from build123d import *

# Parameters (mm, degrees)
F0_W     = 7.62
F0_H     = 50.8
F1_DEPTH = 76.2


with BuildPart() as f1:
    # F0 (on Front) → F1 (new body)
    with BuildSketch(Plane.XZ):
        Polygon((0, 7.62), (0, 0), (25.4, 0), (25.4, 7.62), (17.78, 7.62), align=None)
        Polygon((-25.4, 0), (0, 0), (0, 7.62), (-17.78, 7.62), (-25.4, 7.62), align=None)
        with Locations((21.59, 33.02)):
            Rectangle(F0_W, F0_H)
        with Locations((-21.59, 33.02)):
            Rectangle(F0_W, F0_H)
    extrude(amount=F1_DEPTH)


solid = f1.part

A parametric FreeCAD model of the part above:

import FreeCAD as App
import Part
import Sketcher

V = App.Vector
Q = App.Units.Quantity

doc = App.newDocument("Part")
params = doc.addObject("Spreadsheet::Sheet", "Params")
for row, (alias, value) in enumerate([
    ("sketch1_width", "2 in"),
    ("sketch1_width2", "0.3 in"),
    ("sketch1_height", "2.3 in"),
    ("pad1_length", "3 in"),
], start=1):
    params.set(f"A{row}", alias)
    params.set(f"B{row}", "=" + value)
    params.setAlias(f"B{row}", alias)

body = doc.addObject("PartDesign::Body", "Body")

# Sketch on XZ plane
sketch1 = body.newObject("Sketcher::SketchObject", "Sketch")
sketch1.AttachmentSupport = (doc.getObject("XZ_Plane"), [""])
sketch1.MapMode = "FlatFace"
sketch1.addGeometry([
    Part.LineSegment(V(25, 0, 0), V(25, 58, 0)),  # 0
    Part.LineSegment(V(25, 58, 0), V(18, 58, 0)),  # 1
    Part.LineSegment(V(18, 58, 0), V(18, 8, 0)),  # 2
    Part.LineSegment(V(18, 8, 0), V(-18, 8, 0)),  # 3
    Part.LineSegment(V(-18, 8, 0), V(-18, 58, 0)),  # 4
    Part.LineSegment(V(-18, 58, 0), V(-25, 58, 0)),  # 5
    Part.LineSegment(V(-25, 58, 0), V(-25, 0, 0)),  # 6
    Part.LineSegment(V(-25, 0, 0), V(25, 0, 0)),  # 7
], False)
sketch1.addConstraint([
    Sketcher.Constraint("Coincident", 0, 2, 1, 1),
    Sketcher.Constraint("Coincident", 1, 2, 2, 1),
    Sketcher.Constraint("Coincident", 2, 2, 3, 1),
    Sketcher.Constraint("Coincident", 3, 2, 4, 1),
    Sketcher.Constraint("Coincident", 4, 2, 5, 1),
    Sketcher.Constraint("Coincident", 5, 2, 6, 1),
    Sketcher.Constraint("Coincident", 6, 2, 7, 1),
    Sketcher.Constraint("Coincident", 7, 2, 0, 1),
    Sketcher.Constraint("Vertical", 0),
    Sketcher.Constraint("Horizontal", 1),
    Sketcher.Constraint("Vertical", 2),
    Sketcher.Constraint("Horizontal", 3),
    Sketcher.Constraint("Vertical", 4),
    Sketcher.Constraint("Horizontal", 5),
    Sketcher.Constraint("Vertical", 6),
    Sketcher.Constraint("Horizontal", 7),
    Sketcher.Constraint("Symmetric", 6, 2, 7, 2, -1, 1),
    Sketcher.Constraint("Symmetric", 1, 2, 4, 2, -2),
    Sketcher.Constraint("Equal", 7, 2),
    Sketcher.Constraint("DistanceX", 7, 1, 7, 2, Q("2 in")),
    Sketcher.Constraint("DistanceX", 1, 2, 1, 1, Q("0.3 in")),
    Sketcher.Constraint("DistanceY", 0, 1, 0, 2, Q("2.3 in")),
])
sketch1.setExpression("Constraints[19]", "Params.sketch1_width")
sketch1.setExpression("Constraints[20]", "Params.sketch1_width2")
sketch1.setExpression("Constraints[21]", "Params.sketch1_height")
pad1 = body.newObject("PartDesign::Pad", "Pad")
pad1.Profile = sketch1
pad1.setExpression("Length", "Params.pad1_length")

doc.recompute()
